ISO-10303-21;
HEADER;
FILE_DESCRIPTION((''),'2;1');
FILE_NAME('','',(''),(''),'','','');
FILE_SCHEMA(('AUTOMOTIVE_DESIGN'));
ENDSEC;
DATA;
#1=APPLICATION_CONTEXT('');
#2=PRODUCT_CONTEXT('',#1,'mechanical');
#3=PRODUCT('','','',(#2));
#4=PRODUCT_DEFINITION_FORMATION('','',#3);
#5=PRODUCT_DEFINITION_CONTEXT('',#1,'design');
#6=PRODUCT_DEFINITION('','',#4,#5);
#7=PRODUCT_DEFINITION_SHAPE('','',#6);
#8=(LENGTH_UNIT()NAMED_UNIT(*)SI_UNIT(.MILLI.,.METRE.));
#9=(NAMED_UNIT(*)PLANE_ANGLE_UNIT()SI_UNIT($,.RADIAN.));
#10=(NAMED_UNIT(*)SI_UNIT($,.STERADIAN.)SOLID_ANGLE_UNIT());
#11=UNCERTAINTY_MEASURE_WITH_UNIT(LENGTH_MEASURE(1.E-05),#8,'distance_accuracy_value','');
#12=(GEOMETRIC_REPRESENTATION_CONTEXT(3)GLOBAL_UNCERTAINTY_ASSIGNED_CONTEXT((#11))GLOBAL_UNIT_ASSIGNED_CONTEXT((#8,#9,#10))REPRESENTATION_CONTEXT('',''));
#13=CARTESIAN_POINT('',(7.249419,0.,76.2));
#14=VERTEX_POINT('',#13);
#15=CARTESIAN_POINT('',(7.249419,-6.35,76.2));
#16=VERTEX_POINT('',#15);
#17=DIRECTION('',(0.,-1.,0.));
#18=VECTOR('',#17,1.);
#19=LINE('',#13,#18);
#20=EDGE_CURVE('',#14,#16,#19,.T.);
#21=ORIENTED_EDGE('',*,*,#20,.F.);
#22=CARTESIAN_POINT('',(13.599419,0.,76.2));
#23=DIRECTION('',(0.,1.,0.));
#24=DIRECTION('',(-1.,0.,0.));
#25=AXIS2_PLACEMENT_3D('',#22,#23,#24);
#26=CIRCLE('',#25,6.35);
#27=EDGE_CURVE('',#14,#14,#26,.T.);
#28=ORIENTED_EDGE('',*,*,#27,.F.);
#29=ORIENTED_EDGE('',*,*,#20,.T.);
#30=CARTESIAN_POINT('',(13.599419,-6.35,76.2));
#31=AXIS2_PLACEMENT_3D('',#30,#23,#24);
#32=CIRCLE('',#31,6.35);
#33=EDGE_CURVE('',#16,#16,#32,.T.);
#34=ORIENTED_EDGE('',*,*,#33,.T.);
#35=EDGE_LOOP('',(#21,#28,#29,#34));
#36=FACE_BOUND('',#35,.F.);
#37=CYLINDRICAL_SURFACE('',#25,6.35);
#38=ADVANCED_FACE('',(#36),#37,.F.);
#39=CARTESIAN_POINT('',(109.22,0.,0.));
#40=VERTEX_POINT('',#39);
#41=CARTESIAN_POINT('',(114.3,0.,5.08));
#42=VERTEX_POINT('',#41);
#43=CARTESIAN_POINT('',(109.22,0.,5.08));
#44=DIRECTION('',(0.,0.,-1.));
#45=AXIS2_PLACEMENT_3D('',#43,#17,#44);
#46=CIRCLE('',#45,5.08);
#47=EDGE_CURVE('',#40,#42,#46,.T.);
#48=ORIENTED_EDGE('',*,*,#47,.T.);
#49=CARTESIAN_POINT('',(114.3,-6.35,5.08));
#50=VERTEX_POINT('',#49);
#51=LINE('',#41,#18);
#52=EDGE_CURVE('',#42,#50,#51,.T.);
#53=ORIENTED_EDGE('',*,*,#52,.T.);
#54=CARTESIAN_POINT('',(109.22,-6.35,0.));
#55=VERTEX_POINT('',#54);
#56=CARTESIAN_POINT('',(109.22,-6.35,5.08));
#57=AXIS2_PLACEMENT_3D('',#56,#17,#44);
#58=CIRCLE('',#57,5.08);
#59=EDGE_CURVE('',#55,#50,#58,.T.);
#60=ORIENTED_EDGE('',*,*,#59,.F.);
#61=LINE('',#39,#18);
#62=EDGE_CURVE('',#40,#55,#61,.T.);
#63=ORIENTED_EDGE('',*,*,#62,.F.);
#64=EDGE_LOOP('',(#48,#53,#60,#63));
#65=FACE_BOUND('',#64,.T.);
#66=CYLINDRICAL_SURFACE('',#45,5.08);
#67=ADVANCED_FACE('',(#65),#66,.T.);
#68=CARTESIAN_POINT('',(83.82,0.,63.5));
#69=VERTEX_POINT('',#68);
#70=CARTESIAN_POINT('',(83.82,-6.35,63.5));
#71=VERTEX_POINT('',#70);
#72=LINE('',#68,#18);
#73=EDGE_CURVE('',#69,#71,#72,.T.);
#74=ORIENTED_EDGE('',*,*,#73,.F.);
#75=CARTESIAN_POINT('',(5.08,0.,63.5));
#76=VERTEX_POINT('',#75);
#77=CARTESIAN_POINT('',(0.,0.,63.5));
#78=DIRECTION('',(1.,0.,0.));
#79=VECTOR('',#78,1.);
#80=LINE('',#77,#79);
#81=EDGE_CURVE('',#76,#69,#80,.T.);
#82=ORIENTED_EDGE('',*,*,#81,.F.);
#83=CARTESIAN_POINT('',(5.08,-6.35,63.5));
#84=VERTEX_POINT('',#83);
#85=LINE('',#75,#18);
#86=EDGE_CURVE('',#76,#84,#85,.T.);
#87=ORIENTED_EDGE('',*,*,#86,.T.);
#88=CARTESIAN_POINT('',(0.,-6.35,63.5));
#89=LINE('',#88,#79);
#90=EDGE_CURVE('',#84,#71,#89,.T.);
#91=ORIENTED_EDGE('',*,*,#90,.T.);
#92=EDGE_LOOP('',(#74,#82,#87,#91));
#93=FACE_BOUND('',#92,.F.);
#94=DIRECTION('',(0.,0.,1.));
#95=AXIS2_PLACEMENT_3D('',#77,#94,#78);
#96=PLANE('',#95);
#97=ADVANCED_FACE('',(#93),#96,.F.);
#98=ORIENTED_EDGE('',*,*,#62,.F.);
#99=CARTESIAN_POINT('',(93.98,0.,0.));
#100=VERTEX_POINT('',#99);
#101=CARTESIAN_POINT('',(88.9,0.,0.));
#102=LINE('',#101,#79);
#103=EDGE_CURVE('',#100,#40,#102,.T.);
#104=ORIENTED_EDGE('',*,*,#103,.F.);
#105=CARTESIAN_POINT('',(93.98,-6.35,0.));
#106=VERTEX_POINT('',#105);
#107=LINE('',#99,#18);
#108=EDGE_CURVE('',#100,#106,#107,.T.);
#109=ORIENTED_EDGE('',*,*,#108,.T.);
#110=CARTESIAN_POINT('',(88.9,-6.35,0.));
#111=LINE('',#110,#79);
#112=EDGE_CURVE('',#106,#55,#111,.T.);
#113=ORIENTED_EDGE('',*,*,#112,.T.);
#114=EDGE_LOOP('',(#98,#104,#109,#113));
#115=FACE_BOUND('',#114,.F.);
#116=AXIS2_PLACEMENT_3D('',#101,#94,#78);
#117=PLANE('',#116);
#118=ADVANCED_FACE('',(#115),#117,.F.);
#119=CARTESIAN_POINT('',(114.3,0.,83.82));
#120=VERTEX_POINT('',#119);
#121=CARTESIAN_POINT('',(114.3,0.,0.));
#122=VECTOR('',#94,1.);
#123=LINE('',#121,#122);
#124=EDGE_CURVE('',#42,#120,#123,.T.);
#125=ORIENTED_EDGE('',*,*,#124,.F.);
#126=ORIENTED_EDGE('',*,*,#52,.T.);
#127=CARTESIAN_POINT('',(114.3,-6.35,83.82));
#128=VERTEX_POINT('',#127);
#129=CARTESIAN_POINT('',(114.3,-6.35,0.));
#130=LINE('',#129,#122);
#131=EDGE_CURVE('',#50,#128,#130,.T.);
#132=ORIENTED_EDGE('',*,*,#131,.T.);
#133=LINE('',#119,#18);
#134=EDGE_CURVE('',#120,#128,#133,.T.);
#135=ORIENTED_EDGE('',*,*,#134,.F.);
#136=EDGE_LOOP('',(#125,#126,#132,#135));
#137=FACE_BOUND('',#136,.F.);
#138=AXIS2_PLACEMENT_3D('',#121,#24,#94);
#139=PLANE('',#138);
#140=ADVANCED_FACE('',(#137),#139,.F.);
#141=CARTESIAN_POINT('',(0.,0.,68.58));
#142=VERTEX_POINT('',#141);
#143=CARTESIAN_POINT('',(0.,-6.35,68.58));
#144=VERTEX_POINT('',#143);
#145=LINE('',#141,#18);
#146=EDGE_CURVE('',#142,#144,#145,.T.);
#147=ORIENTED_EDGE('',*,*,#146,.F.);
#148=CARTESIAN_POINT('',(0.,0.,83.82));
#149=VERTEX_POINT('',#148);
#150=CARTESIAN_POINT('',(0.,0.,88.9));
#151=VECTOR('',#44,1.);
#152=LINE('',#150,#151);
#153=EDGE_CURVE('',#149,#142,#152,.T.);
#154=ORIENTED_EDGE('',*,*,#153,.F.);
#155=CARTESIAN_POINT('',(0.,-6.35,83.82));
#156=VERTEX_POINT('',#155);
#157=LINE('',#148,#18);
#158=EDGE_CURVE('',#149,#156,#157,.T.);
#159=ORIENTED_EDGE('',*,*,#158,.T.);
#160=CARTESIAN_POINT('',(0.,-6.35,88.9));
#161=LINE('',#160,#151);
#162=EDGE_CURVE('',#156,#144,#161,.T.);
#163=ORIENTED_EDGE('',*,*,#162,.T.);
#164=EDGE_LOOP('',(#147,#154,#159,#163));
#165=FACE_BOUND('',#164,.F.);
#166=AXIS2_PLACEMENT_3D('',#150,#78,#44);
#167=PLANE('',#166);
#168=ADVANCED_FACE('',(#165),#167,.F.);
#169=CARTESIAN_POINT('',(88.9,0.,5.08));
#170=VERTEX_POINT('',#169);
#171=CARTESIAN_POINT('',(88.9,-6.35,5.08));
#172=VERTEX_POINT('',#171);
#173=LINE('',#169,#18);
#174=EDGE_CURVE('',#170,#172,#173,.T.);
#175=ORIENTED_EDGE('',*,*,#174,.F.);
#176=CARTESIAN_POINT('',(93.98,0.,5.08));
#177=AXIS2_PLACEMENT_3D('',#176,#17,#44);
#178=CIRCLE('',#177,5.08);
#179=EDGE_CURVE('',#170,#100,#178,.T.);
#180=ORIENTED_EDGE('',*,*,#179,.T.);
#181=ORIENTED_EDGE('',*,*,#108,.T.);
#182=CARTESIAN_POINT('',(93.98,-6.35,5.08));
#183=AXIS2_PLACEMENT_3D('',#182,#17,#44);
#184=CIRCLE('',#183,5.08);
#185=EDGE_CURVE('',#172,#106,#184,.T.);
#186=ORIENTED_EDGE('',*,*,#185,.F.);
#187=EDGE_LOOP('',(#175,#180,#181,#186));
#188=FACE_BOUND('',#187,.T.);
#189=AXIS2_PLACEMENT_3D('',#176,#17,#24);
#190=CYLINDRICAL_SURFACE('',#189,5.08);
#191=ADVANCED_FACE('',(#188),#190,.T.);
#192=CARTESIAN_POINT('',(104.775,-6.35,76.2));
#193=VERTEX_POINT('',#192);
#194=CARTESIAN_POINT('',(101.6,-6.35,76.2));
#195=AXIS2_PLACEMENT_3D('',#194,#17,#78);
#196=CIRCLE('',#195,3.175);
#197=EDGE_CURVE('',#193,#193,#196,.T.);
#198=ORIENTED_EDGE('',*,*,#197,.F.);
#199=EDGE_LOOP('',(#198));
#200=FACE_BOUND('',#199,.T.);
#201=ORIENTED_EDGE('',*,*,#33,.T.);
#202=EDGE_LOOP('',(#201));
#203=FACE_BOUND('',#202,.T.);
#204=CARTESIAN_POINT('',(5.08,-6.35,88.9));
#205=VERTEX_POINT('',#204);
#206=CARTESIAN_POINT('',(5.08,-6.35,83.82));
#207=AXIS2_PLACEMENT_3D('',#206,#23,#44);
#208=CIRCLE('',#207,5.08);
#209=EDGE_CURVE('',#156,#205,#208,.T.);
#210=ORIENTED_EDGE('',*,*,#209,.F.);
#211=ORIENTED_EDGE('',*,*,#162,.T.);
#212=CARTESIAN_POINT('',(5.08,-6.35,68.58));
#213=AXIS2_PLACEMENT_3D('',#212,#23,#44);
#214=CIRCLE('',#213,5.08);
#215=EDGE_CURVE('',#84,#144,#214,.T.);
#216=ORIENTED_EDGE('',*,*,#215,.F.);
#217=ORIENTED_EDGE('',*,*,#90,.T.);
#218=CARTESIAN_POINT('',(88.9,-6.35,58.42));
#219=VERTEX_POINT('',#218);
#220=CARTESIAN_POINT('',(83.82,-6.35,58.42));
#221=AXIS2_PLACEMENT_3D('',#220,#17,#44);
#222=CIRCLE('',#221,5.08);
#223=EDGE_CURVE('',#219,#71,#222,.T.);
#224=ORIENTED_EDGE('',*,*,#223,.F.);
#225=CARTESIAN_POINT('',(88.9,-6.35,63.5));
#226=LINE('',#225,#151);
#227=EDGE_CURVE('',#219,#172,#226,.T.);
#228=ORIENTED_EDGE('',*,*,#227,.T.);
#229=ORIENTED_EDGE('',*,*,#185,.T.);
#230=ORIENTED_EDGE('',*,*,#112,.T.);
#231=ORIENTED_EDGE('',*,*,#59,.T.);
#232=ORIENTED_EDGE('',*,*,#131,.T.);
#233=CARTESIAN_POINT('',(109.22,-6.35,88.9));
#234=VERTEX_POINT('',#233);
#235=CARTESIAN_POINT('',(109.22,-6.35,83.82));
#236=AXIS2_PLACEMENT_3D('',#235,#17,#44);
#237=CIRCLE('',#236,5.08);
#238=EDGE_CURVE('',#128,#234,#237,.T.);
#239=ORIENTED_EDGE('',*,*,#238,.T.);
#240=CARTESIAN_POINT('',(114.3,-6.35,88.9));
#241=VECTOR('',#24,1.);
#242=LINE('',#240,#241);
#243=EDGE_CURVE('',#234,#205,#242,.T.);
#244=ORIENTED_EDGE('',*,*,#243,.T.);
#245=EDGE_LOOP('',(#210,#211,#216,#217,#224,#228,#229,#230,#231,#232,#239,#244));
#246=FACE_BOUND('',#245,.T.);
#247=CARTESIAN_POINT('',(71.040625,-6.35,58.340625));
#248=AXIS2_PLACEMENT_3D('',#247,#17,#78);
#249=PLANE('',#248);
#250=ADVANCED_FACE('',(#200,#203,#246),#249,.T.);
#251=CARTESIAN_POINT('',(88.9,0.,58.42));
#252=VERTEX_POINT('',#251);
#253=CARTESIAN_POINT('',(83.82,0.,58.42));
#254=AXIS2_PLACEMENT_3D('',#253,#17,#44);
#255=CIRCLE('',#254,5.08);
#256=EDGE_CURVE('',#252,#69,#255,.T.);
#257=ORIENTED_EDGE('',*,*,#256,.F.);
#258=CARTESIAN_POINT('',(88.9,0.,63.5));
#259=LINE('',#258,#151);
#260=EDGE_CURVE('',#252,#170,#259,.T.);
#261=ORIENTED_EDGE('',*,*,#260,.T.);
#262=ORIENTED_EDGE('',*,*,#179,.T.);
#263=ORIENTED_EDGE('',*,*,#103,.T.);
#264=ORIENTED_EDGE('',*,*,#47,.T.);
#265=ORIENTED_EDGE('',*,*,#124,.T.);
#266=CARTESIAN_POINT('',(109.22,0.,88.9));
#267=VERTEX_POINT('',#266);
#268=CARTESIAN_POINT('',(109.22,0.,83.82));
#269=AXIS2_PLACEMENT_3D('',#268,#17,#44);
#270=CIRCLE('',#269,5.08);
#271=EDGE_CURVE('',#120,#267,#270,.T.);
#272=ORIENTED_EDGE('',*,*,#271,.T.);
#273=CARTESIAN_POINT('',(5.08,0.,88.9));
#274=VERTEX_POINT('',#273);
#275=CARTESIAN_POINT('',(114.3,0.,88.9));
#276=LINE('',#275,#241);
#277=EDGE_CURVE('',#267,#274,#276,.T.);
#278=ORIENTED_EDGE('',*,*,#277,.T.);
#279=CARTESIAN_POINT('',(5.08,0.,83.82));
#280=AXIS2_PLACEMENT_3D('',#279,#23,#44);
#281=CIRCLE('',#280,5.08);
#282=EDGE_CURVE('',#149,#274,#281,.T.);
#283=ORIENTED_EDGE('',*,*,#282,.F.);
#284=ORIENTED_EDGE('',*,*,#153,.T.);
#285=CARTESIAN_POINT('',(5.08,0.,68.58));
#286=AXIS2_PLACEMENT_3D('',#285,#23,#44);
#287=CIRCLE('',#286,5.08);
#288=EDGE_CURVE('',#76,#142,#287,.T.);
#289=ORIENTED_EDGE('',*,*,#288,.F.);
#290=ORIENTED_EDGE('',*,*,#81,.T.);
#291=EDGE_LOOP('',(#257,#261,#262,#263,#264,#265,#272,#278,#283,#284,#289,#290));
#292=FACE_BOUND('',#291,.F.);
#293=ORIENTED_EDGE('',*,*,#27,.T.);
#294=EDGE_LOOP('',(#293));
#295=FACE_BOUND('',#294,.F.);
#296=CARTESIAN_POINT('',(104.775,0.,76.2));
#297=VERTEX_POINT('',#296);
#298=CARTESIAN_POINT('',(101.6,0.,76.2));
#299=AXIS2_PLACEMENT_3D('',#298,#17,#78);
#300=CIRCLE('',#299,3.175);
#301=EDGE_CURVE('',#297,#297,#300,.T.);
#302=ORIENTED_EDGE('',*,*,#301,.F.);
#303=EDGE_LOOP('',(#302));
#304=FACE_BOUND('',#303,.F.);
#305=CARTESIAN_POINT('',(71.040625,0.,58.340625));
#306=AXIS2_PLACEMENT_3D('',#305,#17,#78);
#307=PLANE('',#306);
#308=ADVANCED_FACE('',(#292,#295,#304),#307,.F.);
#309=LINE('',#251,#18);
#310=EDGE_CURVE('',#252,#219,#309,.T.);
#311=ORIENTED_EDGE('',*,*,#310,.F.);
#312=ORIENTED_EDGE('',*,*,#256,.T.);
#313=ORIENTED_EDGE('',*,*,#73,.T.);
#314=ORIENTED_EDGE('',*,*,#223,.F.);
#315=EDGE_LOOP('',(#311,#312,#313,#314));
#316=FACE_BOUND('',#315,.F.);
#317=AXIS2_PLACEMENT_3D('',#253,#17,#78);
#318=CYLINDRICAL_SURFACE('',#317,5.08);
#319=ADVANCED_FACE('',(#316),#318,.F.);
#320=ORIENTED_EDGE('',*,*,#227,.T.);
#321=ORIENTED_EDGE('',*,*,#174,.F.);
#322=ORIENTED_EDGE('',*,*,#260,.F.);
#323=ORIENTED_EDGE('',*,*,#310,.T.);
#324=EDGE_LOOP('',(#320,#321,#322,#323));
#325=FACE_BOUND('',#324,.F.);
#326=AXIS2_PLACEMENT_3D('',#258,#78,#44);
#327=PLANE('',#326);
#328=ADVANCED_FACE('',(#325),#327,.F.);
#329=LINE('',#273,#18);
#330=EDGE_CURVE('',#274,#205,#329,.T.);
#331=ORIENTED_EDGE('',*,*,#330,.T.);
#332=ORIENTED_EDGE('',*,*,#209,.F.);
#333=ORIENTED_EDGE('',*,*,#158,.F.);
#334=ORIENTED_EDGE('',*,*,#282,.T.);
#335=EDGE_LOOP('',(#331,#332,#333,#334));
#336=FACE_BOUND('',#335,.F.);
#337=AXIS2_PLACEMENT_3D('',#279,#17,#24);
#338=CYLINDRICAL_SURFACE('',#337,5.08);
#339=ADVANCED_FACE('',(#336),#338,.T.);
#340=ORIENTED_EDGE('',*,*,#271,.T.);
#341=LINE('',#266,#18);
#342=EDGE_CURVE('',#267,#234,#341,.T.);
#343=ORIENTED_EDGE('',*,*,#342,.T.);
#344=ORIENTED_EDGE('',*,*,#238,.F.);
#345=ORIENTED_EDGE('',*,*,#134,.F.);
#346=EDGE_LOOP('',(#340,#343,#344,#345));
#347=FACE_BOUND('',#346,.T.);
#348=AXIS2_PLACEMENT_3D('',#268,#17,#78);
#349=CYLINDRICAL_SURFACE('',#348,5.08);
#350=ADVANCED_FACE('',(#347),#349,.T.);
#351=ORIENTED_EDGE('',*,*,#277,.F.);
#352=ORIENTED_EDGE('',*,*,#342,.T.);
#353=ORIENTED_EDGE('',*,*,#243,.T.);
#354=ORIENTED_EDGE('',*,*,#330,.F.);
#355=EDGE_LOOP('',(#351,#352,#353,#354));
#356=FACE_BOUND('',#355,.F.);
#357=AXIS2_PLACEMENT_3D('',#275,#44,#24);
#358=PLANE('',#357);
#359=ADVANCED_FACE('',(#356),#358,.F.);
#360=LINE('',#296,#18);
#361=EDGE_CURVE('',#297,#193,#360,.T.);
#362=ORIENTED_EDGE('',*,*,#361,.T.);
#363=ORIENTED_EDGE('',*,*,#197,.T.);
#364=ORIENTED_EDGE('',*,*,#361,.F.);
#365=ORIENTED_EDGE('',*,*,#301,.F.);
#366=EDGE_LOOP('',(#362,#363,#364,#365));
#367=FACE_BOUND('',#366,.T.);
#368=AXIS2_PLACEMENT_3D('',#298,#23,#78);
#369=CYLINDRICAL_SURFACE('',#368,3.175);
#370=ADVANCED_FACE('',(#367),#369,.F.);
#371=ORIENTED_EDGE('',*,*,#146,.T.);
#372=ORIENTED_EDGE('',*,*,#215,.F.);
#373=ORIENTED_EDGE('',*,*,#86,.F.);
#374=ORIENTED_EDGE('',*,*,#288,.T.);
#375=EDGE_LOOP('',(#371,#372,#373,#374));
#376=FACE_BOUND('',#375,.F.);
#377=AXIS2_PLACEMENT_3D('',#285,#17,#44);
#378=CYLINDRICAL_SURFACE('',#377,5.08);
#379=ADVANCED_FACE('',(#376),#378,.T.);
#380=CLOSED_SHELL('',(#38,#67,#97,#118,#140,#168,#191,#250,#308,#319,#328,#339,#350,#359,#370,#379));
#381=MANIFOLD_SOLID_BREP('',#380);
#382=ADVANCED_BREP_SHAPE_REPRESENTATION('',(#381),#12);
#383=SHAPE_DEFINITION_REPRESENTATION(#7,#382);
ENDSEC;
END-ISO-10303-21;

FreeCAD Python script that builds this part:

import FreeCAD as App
import Part
import Sketcher

V = App.Vector
Q = App.Units.Quantity


def edges_at(feature, points):
    """Names of the edges that pass closest to the given points."""
    edges = feature.Shape.Edges
    near = lambda p: min(range(len(edges)), key=lambda i: edges[i].distToShape(Part.Vertex(*p))[0])
    return sorted({f"Edge{near(p) + 1}" for p in points})


def add_polygon(sketch, points):
    """Adds a closed chain of lines whose ends are joined by coincident constraints."""
    first, n = sketch.GeometryCount, len(points)
    for a, b in zip(points, points[1:] + points[:1]):
        sketch.addGeometry(Part.LineSegment(App.Vector(*a, 0), App.Vector(*b, 0)), False)
    for i in range(n):
        sketch.addConstraint(Sketcher.Constraint("Coincident", first + i, 2, first + (i + 1) % n, 1))

doc = App.newDocument("Part")
body = doc.addObject("PartDesign::Body", "Body")

sketch1 = body.newObject("Sketcher::SketchObject", "Sketch")
sketch1.AttachmentSupport = (doc.getObject("XZ_Plane"), [""])
sketch1.MapMode = "FlatFace"
add_polygon(sketch1, [(88.9, 63.5), (88.9, 0), (114.3, 0), (114.3, 88.9), (0, 88.9), (0, 63.5)])
sketch1.addGeometry(Part.Circle(V(101.6, 76.2, 0), V(0, 0, 1), 3.2), False)
sketch1.addConstraint([
    Sketcher.Constraint("Vertical", 0),
    Sketcher.Constraint("Horizontal", 1),
    Sketcher.Constraint("Vertical", 2),
    Sketcher.Constraint("Horizontal", 3),
    Sketcher.Constraint("Vertical", 4),
    Sketcher.Constraint("Horizontal", 5),
    Sketcher.Constraint("PointOnObject", 0, 2, -1),
    Sketcher.Constraint("PointOnObject", 3, 2, -2),
    Sketcher.Constraint("Equal", 5, 2),
    Sketcher.Constraint("Equal", 1, 4),
    Sketcher.Constraint("Diameter", 6, Q("0.25 in")),
    Sketcher.Constraint("DistanceX", 1, 1, 1, 2, Q("1 in")),
    Sketcher.Constraint("DistanceX", 3, 2, 3, 1, Q("4.5 in")),
    Sketcher.Constraint("DistanceX", -1, 1, 6, 3, Q("4 in")),
    Sketcher.Constraint("DistanceY", -1, 1, 6, 3, Q("3 in")),
])
pad1 = body.newObject("PartDesign::Pad", "Pad")
pad1.Profile = sketch1
pad1.Length = Q("0.25 in")
doc.recompute()

fillet = body.newObject("PartDesign::Fillet", "Fillet")
fillet.Base = (pad1, edges_at(pad1, [
    (0, -3.175, 63.5),
    (0, -3.175, 88.9),
    (114.3, -3.175, 88.9),
    (114.3, -3.175, 0),
    (88.9, -3.175, 0),
    (88.9, -3.175, 63.5),
]))
fillet.Radius = Q("0.2 in")

sketch2 = body.newObject("Sketcher::SketchObject", "Sketch001")
sketch2.AttachmentSupport = (doc.getObject("XZ_Plane"), [""])
sketch2.MapMode = "FlatFace"
sketch2.addGeometry(Part.Circle(V(14, 76, 0), V(0, 0, 1), 6), False)
sketch2.addConstraint([
    Sketcher.Constraint("Diameter", 0, Q("0.5 in")),
    Sketcher.Constraint("DistanceY", -1, 1, 0, 3, Q("3 in")),
    Sketcher.Constraint("DistanceX", -1, 1, 0, 3, 13.599419),
])
pocket1 = body.newObject("PartDesign::Pocket", "Pocket")
pocket1.Profile = sketch2
pocket1.Length = Q("1 in")
pocket1.Reversed = True

doc.recompute()
